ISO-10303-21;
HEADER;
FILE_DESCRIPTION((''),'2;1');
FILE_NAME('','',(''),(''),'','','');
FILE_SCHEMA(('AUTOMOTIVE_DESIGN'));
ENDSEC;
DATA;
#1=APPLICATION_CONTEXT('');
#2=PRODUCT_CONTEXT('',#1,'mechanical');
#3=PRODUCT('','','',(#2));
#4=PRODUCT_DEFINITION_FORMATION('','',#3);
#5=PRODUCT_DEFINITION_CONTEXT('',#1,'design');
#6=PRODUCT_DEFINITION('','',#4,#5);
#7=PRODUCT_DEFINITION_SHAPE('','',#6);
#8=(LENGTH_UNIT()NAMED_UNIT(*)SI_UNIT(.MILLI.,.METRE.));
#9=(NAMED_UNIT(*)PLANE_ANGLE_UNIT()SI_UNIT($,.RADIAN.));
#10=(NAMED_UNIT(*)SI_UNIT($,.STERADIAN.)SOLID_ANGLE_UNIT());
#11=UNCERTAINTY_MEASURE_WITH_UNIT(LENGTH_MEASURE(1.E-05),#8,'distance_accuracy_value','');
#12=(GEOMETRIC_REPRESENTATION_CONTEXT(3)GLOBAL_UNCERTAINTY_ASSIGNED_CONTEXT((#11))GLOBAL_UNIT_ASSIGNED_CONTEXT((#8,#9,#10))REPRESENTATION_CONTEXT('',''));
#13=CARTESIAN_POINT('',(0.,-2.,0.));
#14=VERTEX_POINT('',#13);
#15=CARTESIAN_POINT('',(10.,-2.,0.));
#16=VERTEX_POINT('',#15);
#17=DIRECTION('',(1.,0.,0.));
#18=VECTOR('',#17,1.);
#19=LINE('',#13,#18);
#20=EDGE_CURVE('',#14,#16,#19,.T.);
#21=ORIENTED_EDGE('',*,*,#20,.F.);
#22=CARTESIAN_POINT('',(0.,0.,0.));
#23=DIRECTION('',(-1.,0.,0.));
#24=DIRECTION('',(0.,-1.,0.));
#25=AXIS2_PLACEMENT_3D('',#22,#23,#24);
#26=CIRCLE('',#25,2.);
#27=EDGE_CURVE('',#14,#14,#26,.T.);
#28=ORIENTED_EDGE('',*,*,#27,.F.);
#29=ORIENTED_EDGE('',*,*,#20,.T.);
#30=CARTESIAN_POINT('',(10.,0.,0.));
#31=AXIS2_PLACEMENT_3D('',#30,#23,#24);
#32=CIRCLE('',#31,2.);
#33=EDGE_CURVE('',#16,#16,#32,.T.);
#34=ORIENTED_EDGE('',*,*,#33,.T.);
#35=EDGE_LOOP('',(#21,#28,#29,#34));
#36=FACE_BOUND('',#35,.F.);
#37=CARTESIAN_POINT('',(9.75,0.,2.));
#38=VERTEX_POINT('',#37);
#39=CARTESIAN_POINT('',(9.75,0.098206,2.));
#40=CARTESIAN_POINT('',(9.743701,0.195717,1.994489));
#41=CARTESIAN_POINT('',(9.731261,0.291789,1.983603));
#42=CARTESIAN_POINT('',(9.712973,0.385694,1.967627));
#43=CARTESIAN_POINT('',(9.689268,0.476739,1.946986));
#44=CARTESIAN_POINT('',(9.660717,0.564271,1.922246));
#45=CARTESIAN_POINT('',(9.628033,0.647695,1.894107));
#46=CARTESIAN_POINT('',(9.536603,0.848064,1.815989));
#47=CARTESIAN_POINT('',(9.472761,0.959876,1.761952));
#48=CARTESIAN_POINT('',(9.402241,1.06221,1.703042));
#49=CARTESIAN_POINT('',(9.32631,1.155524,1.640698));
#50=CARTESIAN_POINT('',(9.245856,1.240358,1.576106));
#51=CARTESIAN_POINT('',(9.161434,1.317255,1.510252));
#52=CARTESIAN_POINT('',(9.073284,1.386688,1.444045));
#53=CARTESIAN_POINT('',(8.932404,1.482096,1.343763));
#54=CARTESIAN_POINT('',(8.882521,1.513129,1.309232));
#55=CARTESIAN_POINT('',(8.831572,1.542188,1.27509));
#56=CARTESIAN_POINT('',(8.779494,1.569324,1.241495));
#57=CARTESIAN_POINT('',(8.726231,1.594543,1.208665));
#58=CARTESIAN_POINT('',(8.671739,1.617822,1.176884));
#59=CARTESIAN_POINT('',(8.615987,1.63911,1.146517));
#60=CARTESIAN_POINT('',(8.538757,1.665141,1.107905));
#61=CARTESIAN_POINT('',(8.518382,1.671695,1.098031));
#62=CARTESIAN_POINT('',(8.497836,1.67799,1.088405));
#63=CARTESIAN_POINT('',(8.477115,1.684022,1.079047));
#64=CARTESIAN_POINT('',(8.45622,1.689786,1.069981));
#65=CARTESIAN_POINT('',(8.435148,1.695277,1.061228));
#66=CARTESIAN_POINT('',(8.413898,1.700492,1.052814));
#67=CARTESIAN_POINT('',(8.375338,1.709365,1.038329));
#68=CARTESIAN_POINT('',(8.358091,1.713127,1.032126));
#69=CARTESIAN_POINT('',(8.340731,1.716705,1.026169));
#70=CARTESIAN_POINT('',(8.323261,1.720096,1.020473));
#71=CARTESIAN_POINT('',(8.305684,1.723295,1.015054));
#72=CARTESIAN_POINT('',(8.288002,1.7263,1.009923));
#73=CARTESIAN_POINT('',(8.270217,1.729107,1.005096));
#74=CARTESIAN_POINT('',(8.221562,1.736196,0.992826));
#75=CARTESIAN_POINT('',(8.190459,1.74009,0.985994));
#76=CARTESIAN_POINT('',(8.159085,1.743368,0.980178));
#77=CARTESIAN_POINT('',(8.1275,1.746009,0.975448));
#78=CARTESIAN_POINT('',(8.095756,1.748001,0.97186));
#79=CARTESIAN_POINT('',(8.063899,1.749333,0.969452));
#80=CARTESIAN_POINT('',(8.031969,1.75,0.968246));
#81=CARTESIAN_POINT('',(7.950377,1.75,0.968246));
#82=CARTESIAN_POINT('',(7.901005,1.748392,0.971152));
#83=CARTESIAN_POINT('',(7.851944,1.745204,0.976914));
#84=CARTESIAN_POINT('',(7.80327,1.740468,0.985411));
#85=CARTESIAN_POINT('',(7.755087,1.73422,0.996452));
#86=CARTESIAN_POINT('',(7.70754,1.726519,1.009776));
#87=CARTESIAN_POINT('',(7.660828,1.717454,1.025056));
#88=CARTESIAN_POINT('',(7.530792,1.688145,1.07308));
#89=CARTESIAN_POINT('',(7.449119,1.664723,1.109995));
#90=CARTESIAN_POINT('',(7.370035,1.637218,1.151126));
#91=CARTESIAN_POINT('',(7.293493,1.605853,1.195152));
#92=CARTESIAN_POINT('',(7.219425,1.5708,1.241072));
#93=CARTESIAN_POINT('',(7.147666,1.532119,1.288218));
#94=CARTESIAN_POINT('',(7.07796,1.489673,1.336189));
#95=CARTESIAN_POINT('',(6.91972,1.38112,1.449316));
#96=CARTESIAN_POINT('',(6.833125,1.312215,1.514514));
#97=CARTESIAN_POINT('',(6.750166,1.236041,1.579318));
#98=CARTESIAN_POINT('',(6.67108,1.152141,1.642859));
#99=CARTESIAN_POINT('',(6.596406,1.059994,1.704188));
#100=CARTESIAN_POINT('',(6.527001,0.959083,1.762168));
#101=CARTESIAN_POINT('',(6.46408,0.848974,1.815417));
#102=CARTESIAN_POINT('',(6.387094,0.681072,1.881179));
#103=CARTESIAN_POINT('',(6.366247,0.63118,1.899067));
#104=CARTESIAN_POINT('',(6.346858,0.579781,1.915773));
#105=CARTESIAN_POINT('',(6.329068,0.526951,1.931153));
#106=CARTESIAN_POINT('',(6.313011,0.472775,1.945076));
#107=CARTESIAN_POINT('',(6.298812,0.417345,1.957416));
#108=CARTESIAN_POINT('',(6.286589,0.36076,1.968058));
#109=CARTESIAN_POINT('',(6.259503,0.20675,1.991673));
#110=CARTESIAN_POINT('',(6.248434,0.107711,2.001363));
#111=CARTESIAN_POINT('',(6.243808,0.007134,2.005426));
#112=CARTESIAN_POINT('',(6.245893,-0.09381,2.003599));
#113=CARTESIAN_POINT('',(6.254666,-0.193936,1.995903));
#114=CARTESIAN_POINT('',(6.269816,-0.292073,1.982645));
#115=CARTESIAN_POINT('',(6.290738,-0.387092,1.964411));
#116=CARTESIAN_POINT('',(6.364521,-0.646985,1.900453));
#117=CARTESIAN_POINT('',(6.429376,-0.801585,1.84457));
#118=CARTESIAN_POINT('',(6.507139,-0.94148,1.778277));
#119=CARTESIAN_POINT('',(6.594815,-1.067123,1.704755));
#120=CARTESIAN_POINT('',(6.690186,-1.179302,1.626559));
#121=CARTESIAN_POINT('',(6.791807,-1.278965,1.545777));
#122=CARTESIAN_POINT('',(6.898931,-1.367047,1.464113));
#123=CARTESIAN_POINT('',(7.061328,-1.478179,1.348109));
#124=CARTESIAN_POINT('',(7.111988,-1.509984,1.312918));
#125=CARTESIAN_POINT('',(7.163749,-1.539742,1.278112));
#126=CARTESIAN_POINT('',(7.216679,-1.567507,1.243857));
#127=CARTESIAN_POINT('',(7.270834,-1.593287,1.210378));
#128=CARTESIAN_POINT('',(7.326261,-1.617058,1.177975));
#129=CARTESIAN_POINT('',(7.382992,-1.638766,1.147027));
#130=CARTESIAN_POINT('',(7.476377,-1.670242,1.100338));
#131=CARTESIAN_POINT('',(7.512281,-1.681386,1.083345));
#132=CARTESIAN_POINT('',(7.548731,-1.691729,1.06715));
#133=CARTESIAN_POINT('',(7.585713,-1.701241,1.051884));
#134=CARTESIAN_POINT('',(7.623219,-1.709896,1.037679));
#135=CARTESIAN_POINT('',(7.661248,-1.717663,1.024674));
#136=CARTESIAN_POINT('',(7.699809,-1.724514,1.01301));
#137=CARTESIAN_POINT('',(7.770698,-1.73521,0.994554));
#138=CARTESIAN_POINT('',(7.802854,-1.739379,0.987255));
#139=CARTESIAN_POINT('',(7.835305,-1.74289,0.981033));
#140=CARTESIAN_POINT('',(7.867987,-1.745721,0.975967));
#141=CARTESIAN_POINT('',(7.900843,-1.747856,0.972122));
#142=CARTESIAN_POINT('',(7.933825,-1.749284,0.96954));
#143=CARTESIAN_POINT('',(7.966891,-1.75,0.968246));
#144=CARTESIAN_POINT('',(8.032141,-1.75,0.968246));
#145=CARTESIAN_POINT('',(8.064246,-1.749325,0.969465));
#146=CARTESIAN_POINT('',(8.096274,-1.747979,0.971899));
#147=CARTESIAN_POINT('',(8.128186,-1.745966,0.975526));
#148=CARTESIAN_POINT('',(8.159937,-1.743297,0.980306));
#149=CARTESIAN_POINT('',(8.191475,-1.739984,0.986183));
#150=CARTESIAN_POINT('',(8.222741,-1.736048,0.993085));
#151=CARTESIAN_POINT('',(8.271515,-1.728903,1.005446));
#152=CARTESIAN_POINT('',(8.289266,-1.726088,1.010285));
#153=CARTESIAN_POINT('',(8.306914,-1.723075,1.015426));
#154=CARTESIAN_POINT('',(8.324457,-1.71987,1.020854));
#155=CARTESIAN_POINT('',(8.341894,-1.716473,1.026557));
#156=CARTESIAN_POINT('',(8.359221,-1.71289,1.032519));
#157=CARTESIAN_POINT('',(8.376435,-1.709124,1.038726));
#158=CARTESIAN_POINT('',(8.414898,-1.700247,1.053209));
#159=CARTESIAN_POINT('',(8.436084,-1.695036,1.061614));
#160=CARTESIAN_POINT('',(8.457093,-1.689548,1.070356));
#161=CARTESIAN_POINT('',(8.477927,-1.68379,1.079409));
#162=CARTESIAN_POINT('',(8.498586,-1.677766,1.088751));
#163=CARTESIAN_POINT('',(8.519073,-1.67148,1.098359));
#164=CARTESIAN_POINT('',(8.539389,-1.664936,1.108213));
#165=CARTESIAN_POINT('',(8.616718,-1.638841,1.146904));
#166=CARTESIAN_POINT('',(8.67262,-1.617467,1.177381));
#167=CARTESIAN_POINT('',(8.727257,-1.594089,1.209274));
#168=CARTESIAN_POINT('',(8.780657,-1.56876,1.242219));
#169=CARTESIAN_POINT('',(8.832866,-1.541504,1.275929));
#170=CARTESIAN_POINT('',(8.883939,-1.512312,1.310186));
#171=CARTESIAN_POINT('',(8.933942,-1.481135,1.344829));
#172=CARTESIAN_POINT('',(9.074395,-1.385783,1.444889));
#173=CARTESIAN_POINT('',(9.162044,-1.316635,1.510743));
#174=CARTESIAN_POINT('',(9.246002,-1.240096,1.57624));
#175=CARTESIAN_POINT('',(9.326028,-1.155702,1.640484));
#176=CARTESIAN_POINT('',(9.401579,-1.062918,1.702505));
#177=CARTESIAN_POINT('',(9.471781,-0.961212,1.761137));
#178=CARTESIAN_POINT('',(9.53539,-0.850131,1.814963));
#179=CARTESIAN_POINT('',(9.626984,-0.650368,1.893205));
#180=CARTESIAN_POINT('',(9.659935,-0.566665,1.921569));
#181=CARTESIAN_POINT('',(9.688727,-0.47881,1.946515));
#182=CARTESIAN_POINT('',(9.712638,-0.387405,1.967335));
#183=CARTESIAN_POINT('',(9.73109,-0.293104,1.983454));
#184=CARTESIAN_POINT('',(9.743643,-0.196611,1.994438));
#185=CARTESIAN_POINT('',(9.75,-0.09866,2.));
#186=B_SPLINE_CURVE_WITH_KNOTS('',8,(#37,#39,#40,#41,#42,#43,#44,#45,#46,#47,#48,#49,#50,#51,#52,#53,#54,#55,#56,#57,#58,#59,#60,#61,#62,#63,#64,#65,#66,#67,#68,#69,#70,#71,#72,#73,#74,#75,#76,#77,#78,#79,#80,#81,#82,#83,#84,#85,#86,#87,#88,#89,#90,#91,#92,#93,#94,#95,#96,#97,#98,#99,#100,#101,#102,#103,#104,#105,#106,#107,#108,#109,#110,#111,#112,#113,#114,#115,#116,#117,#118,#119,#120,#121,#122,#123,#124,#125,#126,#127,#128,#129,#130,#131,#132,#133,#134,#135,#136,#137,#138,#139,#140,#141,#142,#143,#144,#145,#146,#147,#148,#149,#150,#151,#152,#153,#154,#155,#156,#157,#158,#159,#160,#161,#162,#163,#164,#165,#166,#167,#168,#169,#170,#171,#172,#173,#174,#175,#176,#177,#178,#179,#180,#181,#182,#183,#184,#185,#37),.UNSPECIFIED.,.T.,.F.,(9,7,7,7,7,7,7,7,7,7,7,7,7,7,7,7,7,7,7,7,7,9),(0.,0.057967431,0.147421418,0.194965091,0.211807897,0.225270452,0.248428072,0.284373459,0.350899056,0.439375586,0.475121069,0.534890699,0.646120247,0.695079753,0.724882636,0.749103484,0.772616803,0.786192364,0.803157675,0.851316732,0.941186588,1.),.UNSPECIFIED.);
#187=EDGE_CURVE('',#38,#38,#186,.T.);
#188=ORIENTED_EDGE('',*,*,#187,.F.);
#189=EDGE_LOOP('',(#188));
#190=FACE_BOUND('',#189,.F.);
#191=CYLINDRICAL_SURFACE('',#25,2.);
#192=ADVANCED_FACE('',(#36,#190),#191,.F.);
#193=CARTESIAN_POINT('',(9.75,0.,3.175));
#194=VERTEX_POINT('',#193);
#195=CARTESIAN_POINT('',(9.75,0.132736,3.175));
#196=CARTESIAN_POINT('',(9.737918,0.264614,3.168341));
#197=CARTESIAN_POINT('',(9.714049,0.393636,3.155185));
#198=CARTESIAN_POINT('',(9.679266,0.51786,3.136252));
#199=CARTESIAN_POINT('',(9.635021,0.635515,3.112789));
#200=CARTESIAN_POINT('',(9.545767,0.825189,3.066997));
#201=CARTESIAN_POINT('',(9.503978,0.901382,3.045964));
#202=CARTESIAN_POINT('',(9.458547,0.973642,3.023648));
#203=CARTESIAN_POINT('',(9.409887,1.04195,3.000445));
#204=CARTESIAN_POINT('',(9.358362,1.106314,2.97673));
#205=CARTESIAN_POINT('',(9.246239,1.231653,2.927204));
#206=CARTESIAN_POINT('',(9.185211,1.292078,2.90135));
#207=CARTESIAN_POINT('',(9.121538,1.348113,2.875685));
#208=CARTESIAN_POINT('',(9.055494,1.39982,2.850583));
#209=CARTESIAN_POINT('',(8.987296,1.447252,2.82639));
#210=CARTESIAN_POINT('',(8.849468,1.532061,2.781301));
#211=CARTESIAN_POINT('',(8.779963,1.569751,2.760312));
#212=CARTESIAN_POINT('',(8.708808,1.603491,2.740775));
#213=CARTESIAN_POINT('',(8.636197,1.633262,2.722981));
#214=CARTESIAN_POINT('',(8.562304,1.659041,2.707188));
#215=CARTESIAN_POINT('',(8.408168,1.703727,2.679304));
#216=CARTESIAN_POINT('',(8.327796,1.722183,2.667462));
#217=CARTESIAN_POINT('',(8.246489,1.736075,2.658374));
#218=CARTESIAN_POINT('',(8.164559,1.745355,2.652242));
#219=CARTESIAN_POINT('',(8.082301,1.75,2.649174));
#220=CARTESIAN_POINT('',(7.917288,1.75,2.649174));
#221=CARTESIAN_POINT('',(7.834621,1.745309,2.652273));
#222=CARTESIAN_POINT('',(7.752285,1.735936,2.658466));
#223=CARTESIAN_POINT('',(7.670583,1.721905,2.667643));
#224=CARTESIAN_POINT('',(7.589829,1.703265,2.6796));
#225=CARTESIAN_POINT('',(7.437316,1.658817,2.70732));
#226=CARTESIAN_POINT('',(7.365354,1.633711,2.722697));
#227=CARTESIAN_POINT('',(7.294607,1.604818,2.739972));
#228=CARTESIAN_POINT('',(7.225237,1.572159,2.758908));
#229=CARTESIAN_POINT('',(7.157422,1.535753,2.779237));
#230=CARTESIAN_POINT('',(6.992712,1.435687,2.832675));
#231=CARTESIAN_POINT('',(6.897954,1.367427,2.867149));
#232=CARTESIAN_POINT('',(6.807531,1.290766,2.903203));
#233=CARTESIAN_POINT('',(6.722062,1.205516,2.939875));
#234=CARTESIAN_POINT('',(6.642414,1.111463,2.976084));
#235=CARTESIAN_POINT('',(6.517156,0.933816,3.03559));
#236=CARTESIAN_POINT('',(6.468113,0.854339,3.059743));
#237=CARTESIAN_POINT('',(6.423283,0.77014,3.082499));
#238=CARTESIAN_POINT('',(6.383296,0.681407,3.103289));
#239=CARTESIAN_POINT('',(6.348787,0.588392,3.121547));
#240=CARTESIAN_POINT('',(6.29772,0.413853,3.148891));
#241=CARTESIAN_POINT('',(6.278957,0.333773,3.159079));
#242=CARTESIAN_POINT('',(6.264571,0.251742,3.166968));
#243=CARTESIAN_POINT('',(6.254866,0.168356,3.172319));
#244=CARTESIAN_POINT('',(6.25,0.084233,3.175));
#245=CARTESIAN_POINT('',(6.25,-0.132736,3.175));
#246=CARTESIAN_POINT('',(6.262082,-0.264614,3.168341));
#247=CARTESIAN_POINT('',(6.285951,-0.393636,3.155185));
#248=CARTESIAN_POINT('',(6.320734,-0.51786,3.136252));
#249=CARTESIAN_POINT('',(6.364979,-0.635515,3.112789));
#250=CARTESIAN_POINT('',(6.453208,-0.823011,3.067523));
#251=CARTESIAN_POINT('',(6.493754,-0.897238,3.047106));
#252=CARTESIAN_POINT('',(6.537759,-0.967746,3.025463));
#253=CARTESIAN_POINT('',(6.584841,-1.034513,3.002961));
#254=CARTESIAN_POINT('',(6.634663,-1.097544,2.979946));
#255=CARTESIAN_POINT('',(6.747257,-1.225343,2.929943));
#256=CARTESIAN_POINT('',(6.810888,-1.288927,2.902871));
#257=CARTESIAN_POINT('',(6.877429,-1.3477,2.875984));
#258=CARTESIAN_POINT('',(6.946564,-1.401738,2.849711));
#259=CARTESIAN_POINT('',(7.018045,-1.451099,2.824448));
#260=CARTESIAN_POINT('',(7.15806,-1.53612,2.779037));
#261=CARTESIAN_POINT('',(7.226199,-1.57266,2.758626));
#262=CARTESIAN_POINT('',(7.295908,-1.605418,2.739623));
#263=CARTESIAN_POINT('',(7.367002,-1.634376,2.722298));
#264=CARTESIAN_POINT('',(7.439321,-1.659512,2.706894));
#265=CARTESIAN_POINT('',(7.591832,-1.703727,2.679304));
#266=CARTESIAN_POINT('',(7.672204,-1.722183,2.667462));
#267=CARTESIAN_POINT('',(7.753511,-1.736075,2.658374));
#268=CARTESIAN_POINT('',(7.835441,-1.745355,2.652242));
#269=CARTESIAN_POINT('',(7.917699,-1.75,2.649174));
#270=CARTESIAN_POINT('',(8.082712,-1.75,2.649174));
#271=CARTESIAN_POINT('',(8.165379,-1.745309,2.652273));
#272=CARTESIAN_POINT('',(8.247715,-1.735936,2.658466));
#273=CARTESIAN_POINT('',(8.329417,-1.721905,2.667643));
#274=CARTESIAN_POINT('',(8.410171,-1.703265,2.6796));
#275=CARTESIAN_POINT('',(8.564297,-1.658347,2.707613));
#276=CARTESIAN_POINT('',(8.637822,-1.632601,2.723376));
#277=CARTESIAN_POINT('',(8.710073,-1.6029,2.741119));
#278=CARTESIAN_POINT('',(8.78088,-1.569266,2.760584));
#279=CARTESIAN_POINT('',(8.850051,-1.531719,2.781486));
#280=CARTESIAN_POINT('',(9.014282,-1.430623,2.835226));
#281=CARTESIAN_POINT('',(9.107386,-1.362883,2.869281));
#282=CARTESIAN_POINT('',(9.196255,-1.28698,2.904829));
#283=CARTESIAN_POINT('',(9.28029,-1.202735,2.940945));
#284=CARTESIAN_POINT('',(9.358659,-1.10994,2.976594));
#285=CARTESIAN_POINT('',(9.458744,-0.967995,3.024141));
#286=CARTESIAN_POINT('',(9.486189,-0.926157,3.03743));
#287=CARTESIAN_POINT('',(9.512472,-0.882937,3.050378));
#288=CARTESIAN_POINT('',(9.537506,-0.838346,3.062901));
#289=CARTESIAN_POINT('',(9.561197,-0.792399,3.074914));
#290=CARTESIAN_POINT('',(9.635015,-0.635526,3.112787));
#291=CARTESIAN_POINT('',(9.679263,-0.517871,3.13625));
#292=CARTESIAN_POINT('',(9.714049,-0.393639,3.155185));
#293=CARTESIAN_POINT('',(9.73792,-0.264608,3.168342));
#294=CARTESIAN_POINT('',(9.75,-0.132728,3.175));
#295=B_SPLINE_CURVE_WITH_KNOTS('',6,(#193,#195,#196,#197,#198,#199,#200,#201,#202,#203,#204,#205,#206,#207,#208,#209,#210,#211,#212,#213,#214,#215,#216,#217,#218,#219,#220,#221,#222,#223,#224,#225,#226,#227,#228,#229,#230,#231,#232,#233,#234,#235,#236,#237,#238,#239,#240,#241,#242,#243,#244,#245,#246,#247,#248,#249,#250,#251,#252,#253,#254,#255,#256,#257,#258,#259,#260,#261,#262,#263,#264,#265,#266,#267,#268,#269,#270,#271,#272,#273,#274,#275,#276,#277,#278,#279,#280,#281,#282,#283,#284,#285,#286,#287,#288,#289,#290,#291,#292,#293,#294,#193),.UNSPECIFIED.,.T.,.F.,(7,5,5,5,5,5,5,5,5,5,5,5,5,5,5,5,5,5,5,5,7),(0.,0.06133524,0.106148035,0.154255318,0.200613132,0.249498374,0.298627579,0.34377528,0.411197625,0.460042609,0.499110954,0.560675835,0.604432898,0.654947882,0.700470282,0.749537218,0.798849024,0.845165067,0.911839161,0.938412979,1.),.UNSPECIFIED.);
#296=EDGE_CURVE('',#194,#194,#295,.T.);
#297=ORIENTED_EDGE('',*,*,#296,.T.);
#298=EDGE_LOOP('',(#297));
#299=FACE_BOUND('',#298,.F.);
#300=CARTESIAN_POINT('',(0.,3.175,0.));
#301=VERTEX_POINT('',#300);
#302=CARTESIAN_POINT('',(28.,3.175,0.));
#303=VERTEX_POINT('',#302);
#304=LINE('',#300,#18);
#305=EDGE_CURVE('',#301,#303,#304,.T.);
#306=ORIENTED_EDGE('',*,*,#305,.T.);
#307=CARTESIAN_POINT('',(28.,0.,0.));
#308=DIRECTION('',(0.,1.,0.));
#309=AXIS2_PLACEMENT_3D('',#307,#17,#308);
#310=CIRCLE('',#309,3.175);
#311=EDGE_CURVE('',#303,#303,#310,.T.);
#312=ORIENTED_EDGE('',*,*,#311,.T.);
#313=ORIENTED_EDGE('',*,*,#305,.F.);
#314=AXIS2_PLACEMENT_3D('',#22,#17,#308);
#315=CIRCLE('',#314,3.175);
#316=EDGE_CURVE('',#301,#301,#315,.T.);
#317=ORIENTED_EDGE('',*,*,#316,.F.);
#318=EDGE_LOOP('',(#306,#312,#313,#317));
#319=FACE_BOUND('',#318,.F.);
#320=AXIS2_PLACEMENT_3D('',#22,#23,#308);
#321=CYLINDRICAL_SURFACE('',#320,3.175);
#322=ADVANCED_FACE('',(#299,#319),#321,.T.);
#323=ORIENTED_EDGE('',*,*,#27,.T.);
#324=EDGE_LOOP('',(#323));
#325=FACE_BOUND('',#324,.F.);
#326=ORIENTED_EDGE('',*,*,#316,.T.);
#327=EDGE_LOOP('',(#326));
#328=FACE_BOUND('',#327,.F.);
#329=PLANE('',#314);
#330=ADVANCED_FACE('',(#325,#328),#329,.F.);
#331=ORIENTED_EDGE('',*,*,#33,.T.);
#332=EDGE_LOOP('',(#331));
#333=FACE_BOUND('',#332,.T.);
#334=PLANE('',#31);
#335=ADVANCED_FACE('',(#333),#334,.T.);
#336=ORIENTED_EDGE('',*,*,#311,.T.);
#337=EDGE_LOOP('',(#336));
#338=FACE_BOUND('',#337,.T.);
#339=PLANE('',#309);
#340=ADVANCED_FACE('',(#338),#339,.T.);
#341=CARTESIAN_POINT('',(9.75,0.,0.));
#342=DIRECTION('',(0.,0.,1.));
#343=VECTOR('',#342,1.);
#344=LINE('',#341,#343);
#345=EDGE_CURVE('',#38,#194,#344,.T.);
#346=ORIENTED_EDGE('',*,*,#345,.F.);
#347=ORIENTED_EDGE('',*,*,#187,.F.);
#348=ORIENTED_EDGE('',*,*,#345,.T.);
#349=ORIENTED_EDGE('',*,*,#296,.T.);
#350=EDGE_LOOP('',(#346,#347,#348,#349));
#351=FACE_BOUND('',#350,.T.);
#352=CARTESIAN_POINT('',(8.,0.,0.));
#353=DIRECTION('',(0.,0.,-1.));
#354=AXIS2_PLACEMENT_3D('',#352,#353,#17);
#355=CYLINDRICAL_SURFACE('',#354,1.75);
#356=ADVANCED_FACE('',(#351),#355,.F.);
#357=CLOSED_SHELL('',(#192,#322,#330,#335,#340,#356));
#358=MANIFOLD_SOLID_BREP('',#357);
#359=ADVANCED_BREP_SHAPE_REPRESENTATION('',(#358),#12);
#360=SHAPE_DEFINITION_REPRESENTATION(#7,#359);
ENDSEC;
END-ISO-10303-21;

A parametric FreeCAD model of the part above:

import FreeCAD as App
import Part
import Sketcher
from FreeCAD import Vector
Q = App.Units.Quantity

doc = App.newDocument("Part")
body = doc.addObject("PartDesign::Body", "Body")

# Sketch on YZ plane
sketch1 = doc.addObject("Sketcher::SketchObject", "Sketch")
body.addObject(sketch1)
sketch1.AttachmentSupport = (doc.YZ_Plane, [""])
sketch1.MapMode = "FlatFace"
sketch1.addGeometry(Part.Circle(Vector(0, 0, 0), Vector(0, 0, 1), 3.2), False)
sketch1.addConstraint([
    Sketcher.Constraint("Coincident", 0, 3, -1, 1),
    Sketcher.Constraint("Diameter", 0, Q("6.35 mm")),
])
pad1 = doc.addObject("PartDesign::Pad", "Pad")
body.addObject(pad1)
pad1.Profile = sketch1
pad1.Length = 28

# Sketch on YZ plane
sketch2 = doc.addObject("Sketcher::SketchObject", "Sketch001")
body.addObject(sketch2)
sketch2.AttachmentSupport = (doc.YZ_Plane, [""])
sketch2.MapMode = "FlatFace"
sketch2.addGeometry(Part.Circle(Vector(0, 0, 0), Vector(0, 0, 1), 2), False)
sketch2.addConstraint([
    Sketcher.Constraint("Coincident", 0, 3, -1, 1),
    Sketcher.Constraint("Diameter", 0, Q("4 mm")),
])
pocket1 = doc.addObject("PartDesign::Pocket", "Pocket")
body.addObject(pocket1)
pocket1.Profile = sketch2
pocket1.Length = 10
pocket1.Reversed = True

# Sketch on XY plane
sketch3 = doc.addObject("Sketcher::SketchObject", "Sketch002")
body.addObject(sketch3)
sketch3.AttachmentSupport = (doc.XY_Plane, [""])
sketch3.MapMode = "FlatFace"
sketch3.addGeometry(Part.Circle(Vector(8, 0, 0), Vector(0, 0, 1), 1.8), False)
sketch3.addConstraint([
    Sketcher.Constraint("PointOnObject", 0, 3, -1),
    Sketcher.Constraint("Diameter", 0, Q("3.5 mm")),
    Sketcher.Constraint("DistanceX", -1, 1, 0, 3, Q("8 mm")),
])
pocket2 = doc.addObject("PartDesign::Pocket", "Pocket001")
body.addObject(pocket2)
pocket2.Profile = sketch3
pocket2.Type = "ThroughAll"
pocket2.Reversed = True

doc.recompute()
